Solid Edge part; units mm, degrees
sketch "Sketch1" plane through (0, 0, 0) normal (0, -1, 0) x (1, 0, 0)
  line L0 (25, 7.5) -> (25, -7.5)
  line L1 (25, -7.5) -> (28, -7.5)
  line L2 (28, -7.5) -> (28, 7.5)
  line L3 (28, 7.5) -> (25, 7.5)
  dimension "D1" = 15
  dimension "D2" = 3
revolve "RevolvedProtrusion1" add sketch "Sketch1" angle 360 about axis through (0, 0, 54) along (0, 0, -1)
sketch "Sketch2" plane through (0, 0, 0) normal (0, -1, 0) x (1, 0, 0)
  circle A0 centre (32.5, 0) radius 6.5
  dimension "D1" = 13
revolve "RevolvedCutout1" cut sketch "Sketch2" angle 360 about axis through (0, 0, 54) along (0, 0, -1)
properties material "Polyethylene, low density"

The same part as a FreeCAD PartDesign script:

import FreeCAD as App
import Part
import Sketcher
from FreeCAD import Vector


def add_polygon(sketch, points):
    """Adds a closed chain of lines whose ends are joined by coincident constraints."""
    first, n = sketch.GeometryCount, len(points)
    for a, b in zip(points, points[1:] + points[:1]):
        sketch.addGeometry(Part.LineSegment(App.Vector(*a, 0), App.Vector(*b, 0)), False)
    for i in range(n):
        sketch.addConstraint(Sketcher.Constraint("Coincident", first + i, 2, first + (i + 1) % n, 1))

doc = App.newDocument("Part")
body = doc.addObject("PartDesign::Body", "Body")

# Sketch on XZ plane
sketch1 = doc.addObject("Sketcher::SketchObject", "Sketch")
body.addObject(sketch1)
sketch1.AttachmentSupport = (doc.XZ_Plane, [""])
sketch1.MapMode = "FlatFace"
add_polygon(sketch1, [(28, 7.5), (25, 7.5), (25, -7.5), (28, -7.5)])  # lines 0-3
sketch1.addConstraint([
    Sketcher.Constraint("Horizontal", 0),
    Sketcher.Constraint("Vertical", 1),
    Sketcher.Constraint("Horizontal", 2),
    Sketcher.Constraint("Vertical", 3),
    Sketcher.Constraint("DistanceX", -1, 1, 2, 2, 28.0),
    Sketcher.Constraint("DistanceX", 0, 2, 0, 1, 3.0),
    Sketcher.Constraint("DistanceY", 1, 2, 1, 1, 15.0),
    Sketcher.Constraint("DistanceY", -1, 1, 0, 2, 7.5),
])
revolution = doc.addObject("PartDesign::Revolution", "Revolution")
body.addObject(revolution)
revolution.Profile = sketch1
revolution.ReferenceAxis = (sketch1, ["V_Axis"])
revolution.Angle = 360

# Sketch on XZ plane
sketch2 = doc.addObject("Sketcher::SketchObject", "Sketch001")
body.addObject(sketch2)
sketch2.AttachmentSupport = (doc.XZ_Plane, [""])
sketch2.MapMode = "FlatFace"
sketch2.addGeometry(Part.Circle(Vector(32.5, 0, 0), Vector(0, 0, 1), 6.5), False)
sketch2.addConstraint([
    Sketcher.Constraint("PointOnObject", 0, 3, -1),
    Sketcher.Constraint("Diameter", 0, 13.0),
    Sketcher.Constraint("DistanceX", -1, 1, 0, 3, 32.5),
])
groove = doc.addObject("PartDesign::Groove", "Groove")
body.addObject(groove)
groove.Profile = sketch2
groove.ReferenceAxis = (sketch2, ["V_Axis"])
groove.Angle = 360

doc.recompute()
